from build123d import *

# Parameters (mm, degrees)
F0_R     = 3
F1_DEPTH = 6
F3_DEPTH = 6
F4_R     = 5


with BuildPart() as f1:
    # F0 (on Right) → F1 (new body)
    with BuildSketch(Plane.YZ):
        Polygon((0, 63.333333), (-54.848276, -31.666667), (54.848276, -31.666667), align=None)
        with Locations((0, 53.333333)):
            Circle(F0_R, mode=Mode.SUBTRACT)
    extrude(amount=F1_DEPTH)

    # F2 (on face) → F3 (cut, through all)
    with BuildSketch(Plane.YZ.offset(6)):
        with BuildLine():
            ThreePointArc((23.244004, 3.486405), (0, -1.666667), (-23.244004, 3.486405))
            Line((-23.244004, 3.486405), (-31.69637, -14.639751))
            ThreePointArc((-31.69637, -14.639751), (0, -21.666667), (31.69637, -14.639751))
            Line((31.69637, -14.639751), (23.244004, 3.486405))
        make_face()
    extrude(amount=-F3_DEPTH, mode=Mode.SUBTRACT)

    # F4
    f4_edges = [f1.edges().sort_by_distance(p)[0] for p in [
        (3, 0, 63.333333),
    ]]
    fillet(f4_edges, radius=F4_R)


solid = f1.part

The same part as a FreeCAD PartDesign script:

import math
import FreeCAD as App
import Part
import Sketcher
from FreeCAD import Vector
Q = App.Units.Quantity


def edges_at(feature, points):
    """Names of the edges that pass closest to the given points."""
    edges = feature.Shape.Edges
    near = lambda p: min(range(len(edges)), key=lambda i: edges[i].distToShape(Part.Vertex(*p))[0])
    return sorted({f"Edge{near(p) + 1}" for p in points})


def add_polygon(sketch, points):
    """Adds a closed chain of lines whose ends are joined by coincident constraints."""
    first, n = sketch.GeometryCount, len(points)
    for a, b in zip(points, points[1:] + points[:1]):
        sketch.addGeometry(Part.LineSegment(App.Vector(*a, 0), App.Vector(*b, 0)), False)
    for i in range(n):
        sketch.addConstraint(Sketcher.Constraint("Coincident", first + i, 2, first + (i + 1) % n, 1))

doc = App.newDocument("Part")
body = doc.addObject("PartDesign::Body", "Body")

sketch1 = body.newObject("Sketcher::SketchObject", "Sketch")
sketch1.AttachmentSupport = (doc.getObject("YZ_Plane"), [""])
sketch1.MapMode = "FlatFace"
add_polygon(sketch1, [(0, 63.3), (-54.8, -31.7), (54.8, -31.7)])
sketch1.addGeometry(Part.Circle(Vector(0, 53.3, 0), Vector(0, 0, 1), 3), False)
sketch1.addConstraint([
    Sketcher.Constraint("Horizontal", 1),
    Sketcher.Constraint("PointOnObject", 3, 3, -2),
    Sketcher.Constraint("PointOnObject", 2, 2, -2),
    Sketcher.Constraint("Equal", 0, 2),
    Sketcher.Constraint("Diameter", 3, Q("6 mm")),
    Sketcher.Constraint("Angle", 0, Q("-120 deg")),
    Sketcher.Constraint("DistanceY", 0, 2, 3, 3, Q("85 mm")),
    Sketcher.Constraint("DistanceY", 3, 3, 2, 2, Q("10 mm")),
    Sketcher.Constraint("DistanceY", -1, 1, 3, 3, Q("53.333333 mm")),
])
pad1 = body.newObject("PartDesign::Pad", "Pad")
pad1.Profile = sketch1
pad1.Length = 6

sketch2 = body.newObject("Sketcher::SketchObject", "Sketch001")
sketch2.AttachmentSupport = (doc.getObject("YZ_Plane"), [""])
sketch2.MapMode = "FlatFace"
sketch2.AttachmentOffset = App.Placement(Vector(0, 0, 6), App.Rotation())
sketch2.addGeometry([
    Part.ArcOfCircle(Part.Circle(Vector(0, 53, 0), Vector(0, 0, 1), 55), math.radians(-115), math.radians(-65)),
    Part.LineSegment(Vector(-23, 3, 0), Vector(-32, -15, 0)),
    Part.ArcOfCircle(Part.Circle(Vector(0, 53, 0), Vector(0, 0, 1), 75), math.radians(-115), math.radians(-65)),
    Part.LineSegment(Vector(32, -15, 0), Vector(23, 3, 0)),
], False)
sketch2.addConstraint([
    Sketcher.Constraint("Coincident", 0, 1, 1, 1),
    Sketcher.Constraint("Coincident", 1, 2, 2, 1),
    Sketcher.Constraint("Coincident", 2, 2, 3, 1),
    Sketcher.Constraint("Coincident", 3, 2, 0, 2),
    Sketcher.Constraint("Coincident", 2, 3, 0, 3),
    Sketcher.Constraint("Symmetric", 1, 2, 2, 2, -2),
    Sketcher.Constraint("Horizontal", 0, 1, 3, 2),
    Sketcher.Constraint("Radius", 2, Q("75.000001 mm")),
    Sketcher.Constraint("Angle", 1, Q("-115.000002 deg")),
    Sketcher.Constraint("Distance", 1, Q("20.000001 mm")),
    Sketcher.Constraint("DistanceY", -1, 1, 0, 3, Q("53.333328 mm")),
    Sketcher.Constraint("DistanceX", 1, 2, -1, 1, Q("31.69637 mm")),
])
pocket1 = body.newObject("PartDesign::Pocket", "Pocket")
pocket1.Profile = sketch2
pocket1.Type = "ThroughAll"
doc.recompute()

fillet = body.newObject("PartDesign::Fillet", "Fillet")
fillet.Base = (pocket1, edges_at(pocket1, [(3, 0, 63.333)]))
fillet.Radius = 5

doc.recompute()
